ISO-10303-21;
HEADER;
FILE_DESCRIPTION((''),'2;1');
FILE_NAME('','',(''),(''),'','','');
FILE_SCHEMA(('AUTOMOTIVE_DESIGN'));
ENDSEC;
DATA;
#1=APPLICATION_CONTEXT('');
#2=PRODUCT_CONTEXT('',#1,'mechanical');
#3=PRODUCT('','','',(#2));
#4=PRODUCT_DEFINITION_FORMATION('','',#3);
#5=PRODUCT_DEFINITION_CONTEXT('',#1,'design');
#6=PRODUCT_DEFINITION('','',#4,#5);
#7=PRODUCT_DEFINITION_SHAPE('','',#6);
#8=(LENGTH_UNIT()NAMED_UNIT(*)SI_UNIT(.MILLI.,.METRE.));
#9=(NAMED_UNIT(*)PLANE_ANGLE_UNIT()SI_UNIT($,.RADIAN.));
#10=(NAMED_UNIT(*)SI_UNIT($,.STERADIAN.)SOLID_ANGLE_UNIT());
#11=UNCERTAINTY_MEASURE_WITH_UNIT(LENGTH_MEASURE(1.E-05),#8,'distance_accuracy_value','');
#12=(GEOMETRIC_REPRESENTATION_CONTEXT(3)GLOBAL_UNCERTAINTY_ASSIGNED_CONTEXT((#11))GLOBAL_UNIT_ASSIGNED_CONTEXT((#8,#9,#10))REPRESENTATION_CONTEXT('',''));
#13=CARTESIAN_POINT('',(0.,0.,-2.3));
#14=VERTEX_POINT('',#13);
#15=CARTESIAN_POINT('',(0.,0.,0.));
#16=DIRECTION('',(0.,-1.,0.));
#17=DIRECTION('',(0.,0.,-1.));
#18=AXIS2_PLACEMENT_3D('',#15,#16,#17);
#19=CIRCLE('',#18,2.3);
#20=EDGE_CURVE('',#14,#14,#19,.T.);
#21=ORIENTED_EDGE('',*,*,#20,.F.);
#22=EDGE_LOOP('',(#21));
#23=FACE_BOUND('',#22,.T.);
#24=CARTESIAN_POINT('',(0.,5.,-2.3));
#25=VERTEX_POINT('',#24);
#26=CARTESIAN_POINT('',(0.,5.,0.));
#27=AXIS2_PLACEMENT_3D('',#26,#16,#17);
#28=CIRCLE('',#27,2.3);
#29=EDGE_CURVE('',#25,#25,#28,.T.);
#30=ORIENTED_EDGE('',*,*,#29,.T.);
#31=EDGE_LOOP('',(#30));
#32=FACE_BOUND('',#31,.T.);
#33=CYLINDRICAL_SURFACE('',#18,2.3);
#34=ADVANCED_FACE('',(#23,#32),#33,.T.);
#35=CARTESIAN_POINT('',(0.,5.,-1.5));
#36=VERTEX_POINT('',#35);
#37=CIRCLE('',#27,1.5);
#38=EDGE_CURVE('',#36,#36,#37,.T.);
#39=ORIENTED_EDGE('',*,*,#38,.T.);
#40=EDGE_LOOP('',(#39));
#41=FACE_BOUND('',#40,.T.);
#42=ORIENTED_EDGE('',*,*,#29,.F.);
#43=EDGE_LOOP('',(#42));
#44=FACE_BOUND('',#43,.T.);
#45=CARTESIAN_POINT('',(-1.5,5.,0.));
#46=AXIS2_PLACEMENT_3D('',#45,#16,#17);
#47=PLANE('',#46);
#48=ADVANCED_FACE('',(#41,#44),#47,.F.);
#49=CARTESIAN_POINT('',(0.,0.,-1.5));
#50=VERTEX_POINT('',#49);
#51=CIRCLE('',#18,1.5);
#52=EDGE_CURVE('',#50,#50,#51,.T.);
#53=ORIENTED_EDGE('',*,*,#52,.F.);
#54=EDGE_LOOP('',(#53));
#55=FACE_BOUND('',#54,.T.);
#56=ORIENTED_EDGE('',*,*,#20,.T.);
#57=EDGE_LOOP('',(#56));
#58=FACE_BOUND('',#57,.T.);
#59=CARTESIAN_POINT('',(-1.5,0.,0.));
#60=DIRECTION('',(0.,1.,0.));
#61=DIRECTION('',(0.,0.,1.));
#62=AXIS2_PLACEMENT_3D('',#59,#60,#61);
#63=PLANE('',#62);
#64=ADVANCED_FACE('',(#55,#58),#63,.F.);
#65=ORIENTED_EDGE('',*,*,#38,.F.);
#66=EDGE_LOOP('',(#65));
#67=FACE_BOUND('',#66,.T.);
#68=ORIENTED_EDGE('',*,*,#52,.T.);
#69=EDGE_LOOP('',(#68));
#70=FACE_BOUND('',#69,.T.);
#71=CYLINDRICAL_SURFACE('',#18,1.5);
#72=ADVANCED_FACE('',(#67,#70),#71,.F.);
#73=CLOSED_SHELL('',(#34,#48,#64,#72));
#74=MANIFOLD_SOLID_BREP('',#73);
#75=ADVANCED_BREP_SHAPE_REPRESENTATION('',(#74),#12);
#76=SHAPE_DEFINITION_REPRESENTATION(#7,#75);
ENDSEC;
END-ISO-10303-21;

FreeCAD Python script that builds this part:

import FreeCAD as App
import Part
import Sketcher

V = App.Vector


def add_polygon(sketch, points):
    """Adds a closed chain of lines whose ends are joined by coincident constraints."""
    first, n = sketch.GeometryCount, len(points)
    for a, b in zip(points, points[1:] + points[:1]):
        sketch.addGeometry(Part.LineSegment(App.Vector(*a, 0), App.Vector(*b, 0)), False)
    for i in range(n):
        sketch.addConstraint(Sketcher.Constraint("Coincident", first + i, 2, first + (i + 1) % n, 1))

doc = App.newDocument("Part")
body = doc.addObject("PartDesign::Body", "Body")

# Sketch on XY plane
sketch1 = body.newObject("Sketcher::SketchObject", "Sketch")
sketch1.AttachmentSupport = (doc.getObject("XY_Plane"), [""])
sketch1.MapMode = "FlatFace"
add_polygon(sketch1, [(-2.3, 5), (-2.3, 0), (-1.5, 0), (-1.5, 5)])  # lines 0-3
sketch1.addConstraint([
    Sketcher.Constraint("Vertical", 0),
    Sketcher.Constraint("Horizontal", 1),
    Sketcher.Constraint("Vertical", 2),
    Sketcher.Constraint("Horizontal", 3),
    Sketcher.Constraint("PointOnObject", 0, 2, -1),
    Sketcher.Constraint("DistanceY", 0, 2, 0, 1, 5.0),
    Sketcher.Constraint("DistanceX", 1, 1, 1, 2, 0.8),
    Sketcher.Constraint("DistanceX", 0, 2, -1, 1, 2.3),
])
revolution = body.newObject("PartDesign::Revolution", "Revolution")
revolution.Profile = sketch1
revolution.ReferenceAxis = (sketch1, ["V_Axis"])
revolution.Angle = 360

doc.recompute()
